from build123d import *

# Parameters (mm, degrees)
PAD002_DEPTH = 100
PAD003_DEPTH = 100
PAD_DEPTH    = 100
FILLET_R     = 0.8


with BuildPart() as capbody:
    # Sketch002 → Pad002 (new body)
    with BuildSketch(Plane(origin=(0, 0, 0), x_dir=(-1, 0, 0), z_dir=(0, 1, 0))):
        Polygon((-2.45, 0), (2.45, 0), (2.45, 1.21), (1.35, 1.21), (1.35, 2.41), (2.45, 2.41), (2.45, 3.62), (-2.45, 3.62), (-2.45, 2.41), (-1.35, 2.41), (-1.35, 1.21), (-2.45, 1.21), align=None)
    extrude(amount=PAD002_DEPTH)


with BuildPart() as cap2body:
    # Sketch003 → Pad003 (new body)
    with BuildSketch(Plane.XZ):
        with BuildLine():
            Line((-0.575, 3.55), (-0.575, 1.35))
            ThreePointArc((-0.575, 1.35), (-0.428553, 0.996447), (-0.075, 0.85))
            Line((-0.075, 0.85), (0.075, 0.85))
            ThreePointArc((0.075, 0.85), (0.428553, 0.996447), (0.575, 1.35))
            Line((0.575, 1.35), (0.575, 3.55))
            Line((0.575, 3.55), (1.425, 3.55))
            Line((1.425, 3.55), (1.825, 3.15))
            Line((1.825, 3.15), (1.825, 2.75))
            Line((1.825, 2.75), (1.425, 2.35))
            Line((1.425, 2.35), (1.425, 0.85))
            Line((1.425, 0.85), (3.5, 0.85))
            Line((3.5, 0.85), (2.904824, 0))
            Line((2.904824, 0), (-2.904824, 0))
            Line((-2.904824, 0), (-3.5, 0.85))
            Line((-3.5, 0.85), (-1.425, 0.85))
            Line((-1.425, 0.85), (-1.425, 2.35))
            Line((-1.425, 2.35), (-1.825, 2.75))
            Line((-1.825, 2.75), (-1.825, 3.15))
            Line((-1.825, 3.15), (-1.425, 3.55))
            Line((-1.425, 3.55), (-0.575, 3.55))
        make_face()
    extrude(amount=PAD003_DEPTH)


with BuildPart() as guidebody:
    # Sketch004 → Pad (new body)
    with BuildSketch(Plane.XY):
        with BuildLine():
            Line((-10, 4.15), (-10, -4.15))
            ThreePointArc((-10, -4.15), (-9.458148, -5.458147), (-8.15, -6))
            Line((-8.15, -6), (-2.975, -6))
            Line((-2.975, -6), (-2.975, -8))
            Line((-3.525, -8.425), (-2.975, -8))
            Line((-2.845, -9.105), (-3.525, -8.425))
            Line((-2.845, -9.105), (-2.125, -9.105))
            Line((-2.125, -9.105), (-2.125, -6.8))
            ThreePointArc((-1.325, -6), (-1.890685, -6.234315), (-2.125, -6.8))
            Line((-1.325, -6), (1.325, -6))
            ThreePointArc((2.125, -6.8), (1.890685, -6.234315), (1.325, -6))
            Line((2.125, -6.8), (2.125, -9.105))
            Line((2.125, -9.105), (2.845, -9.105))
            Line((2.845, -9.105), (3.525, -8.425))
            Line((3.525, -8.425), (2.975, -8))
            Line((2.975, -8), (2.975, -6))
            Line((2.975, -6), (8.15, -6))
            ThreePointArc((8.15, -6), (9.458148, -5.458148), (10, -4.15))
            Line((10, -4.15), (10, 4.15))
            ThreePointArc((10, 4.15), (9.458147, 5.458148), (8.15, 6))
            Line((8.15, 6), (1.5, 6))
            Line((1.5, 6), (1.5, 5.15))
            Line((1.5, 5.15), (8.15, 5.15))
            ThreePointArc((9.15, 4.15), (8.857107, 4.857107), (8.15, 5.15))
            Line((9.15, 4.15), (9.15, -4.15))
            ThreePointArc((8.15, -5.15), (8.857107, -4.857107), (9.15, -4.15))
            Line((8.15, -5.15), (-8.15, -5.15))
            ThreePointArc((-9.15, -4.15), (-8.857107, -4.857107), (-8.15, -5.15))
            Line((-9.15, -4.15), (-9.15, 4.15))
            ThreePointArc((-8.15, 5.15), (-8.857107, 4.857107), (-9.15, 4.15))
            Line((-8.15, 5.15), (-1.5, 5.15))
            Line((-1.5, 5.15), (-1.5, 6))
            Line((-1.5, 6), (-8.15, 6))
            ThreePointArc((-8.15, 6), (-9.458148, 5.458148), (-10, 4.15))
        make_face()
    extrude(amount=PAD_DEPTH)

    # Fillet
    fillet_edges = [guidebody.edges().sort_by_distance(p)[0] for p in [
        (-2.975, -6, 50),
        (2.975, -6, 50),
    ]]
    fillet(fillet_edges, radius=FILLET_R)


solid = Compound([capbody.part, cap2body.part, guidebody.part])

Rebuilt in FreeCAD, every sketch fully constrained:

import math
import FreeCAD as App
import Part
import Sketcher
from FreeCAD import Vector
Q = App.Units.Quantity


def edges_at(feature, points):
    """Names of the edges that pass closest to the given points."""
    edges = feature.Shape.Edges
    near = lambda p: min(range(len(edges)), key=lambda i: edges[i].distToShape(Part.Vertex(*p))[0])
    return sorted({f"Edge{near(p) + 1}" for p in points})


def add_polygon(sketch, points):
    """Adds a closed chain of lines whose ends are joined by coincident constraints."""
    first, n = sketch.GeometryCount, len(points)
    for a, b in zip(points, points[1:] + points[:1]):
        sketch.addGeometry(Part.LineSegment(App.Vector(*a, 0), App.Vector(*b, 0)), False)
    for i in range(n):
        sketch.addConstraint(Sketcher.Constraint("Coincident", first + i, 2, first + (i + 1) % n, 1))

doc = App.newDocument("Part")
body = doc.addObject("PartDesign::Body", "Body")

sketch1 = body.newObject("Sketcher::SketchObject", "Sketch")
sketch1.AttachmentSupport = (doc.getObject("XZ_Plane"), [""])
sketch1.MapMode = "FlatFace"
add_polygon(sketch1, [(2.45, 0), (-2.45, 0), (-2.45, 1.21), (-1.35, 1.21), (-1.35, 2.41), (-2.45, 2.41), (-2.45, 3.62), (2.45, 3.62), (2.45, 2.41), (1.35, 2.41), (1.35, 1.21), (2.45, 1.21)])
sketch1.addConstraint([
    Sketcher.Constraint("Horizontal", 0),
    Sketcher.Constraint("Vertical", 1),
    Sketcher.Constraint("Horizontal", 2),
    Sketcher.Constraint("Vertical", 3),
    Sketcher.Constraint("Horizontal", 4),
    Sketcher.Constraint("Vertical", 5),
    Sketcher.Constraint("Horizontal", 6),
    Sketcher.Constraint("Vertical", 7),
    Sketcher.Constraint("Horizontal", 8),
    Sketcher.Constraint("Vertical", 9),
    Sketcher.Constraint("Horizontal", 10),
    Sketcher.Constraint("Vertical", 11),
    Sketcher.Constraint("Symmetric", 0, 2, 11, 2, -1, 1),
    Sketcher.Constraint("Symmetric", 4, 2, 7, 2, -2),
    Sketcher.Constraint("Symmetric", 2, 2, 9, 2, -2),
    Sketcher.Constraint("Vertical", 1, 2, 4, 2),
    Sketcher.Constraint("Equal", 1, 5),
    Sketcher.Constraint("DistanceX", 0, 2, 0, 1, 4.9),
    Sketcher.Constraint("DistanceX", 2, 1, 2, 2, 1.1),
    Sketcher.Constraint("DistanceY", 3, 1, 3, 2, 1.2),
    Sketcher.Constraint("DistanceY", 1, 1, 1, 2, 1.21),
])
pad1 = body.newObject("PartDesign::Pad", "Pad")
pad1.Profile = sketch1
pad1.Length = 100
pad1.Reversed = True
body2 = doc.addObject("PartDesign::Body", "Body001")

sketch2 = body2.newObject("Sketcher::SketchObject", "Sketch001")
sketch2.AttachmentSupport = (doc.getObject("XZ_Plane001"), [""])
sketch2.MapMode = "FlatFace"
sketch2.addGeometry([
    Part.LineSegment(Vector(-0.575, 1.35, 0), Vector(-0.575, 3.55, 0)),
    Part.LineSegment(Vector(-0.575, 3.55, 0), Vector(-1.425, 3.55, 0)),
    Part.LineSegment(Vector(-1.425, 3.55, 0), Vector(-1.825, 3.15, 0)),
    Part.LineSegment(Vector(-1.825, 3.15, 0), Vector(-1.825, 2.75, 0)),
    Part.LineSegment(Vector(-1.825, 2.75, 0), Vector(-1.425, 2.35, 0)),
    Part.LineSegment(Vector(-1.425, 2.35, 0), Vector(-1.425, 0.85, 0)),
    Part.LineSegment(Vector(-1.425, 0.85, 0), Vector(-3.5, 0.85, 0)),
    Part.LineSegment(Vector(-3.5, 0.85, 0), Vector(-2.904824, 0, 0)),
    Part.LineSegment(Vector(-2.904824, 0, 0), Vector(2.904824, 0, 0)),
    Part.LineSegment(Vector(2.904824, 0, 0), Vector(3.5, 0.85, 0)),
    Part.LineSegment(Vector(3.5, 0.85, 0), Vector(1.425, 0.85, 0)),
    Part.LineSegment(Vector(1.425, 0.85, 0), Vector(1.425, 2.35, 0)),
    Part.LineSegment(Vector(1.425, 2.35, 0), Vector(1.825, 2.75, 0)),
    Part.LineSegment(Vector(1.825, 2.75, 0), Vector(1.825, 3.15, 0)),
    Part.LineSegment(Vector(1.825, 3.15, 0), Vector(1.425, 3.55, 0)),
    Part.LineSegment(Vector(1.425, 3.55, 0), Vector(0.575, 3.55, 0)),
    Part.LineSegment(Vector(0.575, 3.55, 0), Vector(0.575, 1.35, 0)),
    Part.ArcOfCircle(Part.Circle(Vector(0.074999, 1.350001, 0), Vector(0, 0, 1), 0.500001), math.radians(-89.999847), math.radians(-0.000153)),
    Part.LineSegment(Vector(0.075, 0.85, 0), Vector(-0.075, 0.85, 0)),
    Part.ArcOfCircle(Part.Circle(Vector(-0.074999, 1.350001, 0), Vector(0, 0, 1), 0.500001), math.radians(-179.999847), math.radians(-90.000153)),
], False)
sketch2.addConstraint([
    Sketcher.Constraint("Coincident", 0, 2, 1, 1),
    Sketcher.Constraint("Coincident", 1, 2, 2, 1),
    Sketcher.Constraint("Coincident", 2, 2, 3, 1),
    Sketcher.Constraint("Coincident", 3, 2, 4, 1),
    Sketcher.Constraint("Coincident", 4, 2, 5, 1),
    Sketcher.Constraint("Coincident", 5, 2, 6, 1),
    Sketcher.Constraint("Coincident", 6, 2, 7, 1),
    Sketcher.Constraint("Coincident", 7, 2, 8, 1),
    Sketcher.Constraint("Coincident", 8, 2, 9, 1),
    Sketcher.Constraint("Coincident", 9, 2, 10, 1),
    Sketcher.Constraint("Coincident", 10, 2, 11, 1),
    Sketcher.Constraint("Coincident", 11, 2, 12, 1),
    Sketcher.Constraint("Coincident", 12, 2, 13, 1),
    Sketcher.Constraint("Coincident", 13, 2, 14, 1),
    Sketcher.Constraint("Coincident", 14, 2, 15, 1),
    Sketcher.Constraint("Coincident", 15, 2, 16, 1),
    Sketcher.Constraint("Coincident", 16, 2, 17, 2),
    Sketcher.Constraint("Coincident", 17, 1, 18, 1),
    Sketcher.Constraint("Coincident", 18, 2, 19, 2),
    Sketcher.Constraint("Coincident", 19, 1, 0, 1),
    Sketcher.Constraint("Vertical", 0),
    Sketcher.Constraint("Horizontal", 1),
    Sketcher.Constraint("Vertical", 3),
    Sketcher.Constraint("Vertical", 5),
    Sketcher.Constraint("Horizontal", 6),
    Sketcher.Constraint("Horizontal", 8),
    Sketcher.Constraint("Horizontal", 10),
    Sketcher.Constraint("Vertical", 11),
    Sketcher.Constraint("Vertical", 13),
    Sketcher.Constraint("Horizontal", 15),
    Sketcher.Constraint("Vertical", 16),
    Sketcher.Constraint("Horizontal", 18),
    Sketcher.Constraint("Equal", 17, 19),
    Sketcher.Constraint("Symmetric", 7, 2, 8, 2, -1, 1),
    Sketcher.Constraint("Symmetric", 6, 2, 9, 2, -2),
    Sketcher.Constraint("Symmetric", 4, 2, 11, 2, -2),
    Sketcher.Constraint("Symmetric", 3, 2, 12, 2, -2),
    Sketcher.Constraint("Symmetric", 1, 2, 14, 2, -2),
    Sketcher.Constraint("Symmetric", 16, 2, 19, 1, -2),
    Sketcher.Constraint("Perpendicular", 2, 4),
    Sketcher.Constraint("Perpendicular", 4, 12),
    Sketcher.Constraint("Perpendicular", 12, 14),
    Sketcher.Constraint("Horizontal", 19, 3, 16, 2),
    Sketcher.Constraint("Horizontal", 10, 2, 17, 1),
    Sketcher.Constraint("Vertical", 1, 2, 4, 2),
    Sketcher.Constraint("Vertical", 19, 3, 18, 2),
    Sketcher.Constraint("Radius", 17, 0.500001),
    Sketcher.Constraint("Angle", 7, Q("-55.000018 deg")),
    Sketcher.Constraint("DistanceY", 0, 1, 0, 2, 2.2),
    Sketcher.Constraint("DistanceY", 3, 2, 3, 1, 0.4),
    Sketcher.Constraint("DistanceY", 5, 2, 5, 1, 1.5),
    Sketcher.Constraint("DistanceX", 0, 2, 11, 2, 2.0),
    Sketcher.Constraint("DistanceX", 1, 2, 1, 1, 0.85),
    Sketcher.Constraint("DistanceX", 18, 2, 18, 1, 0.15),
    Sketcher.Constraint("DistanceX", 6, 2, -1, 1, 3.5),
    Sketcher.Constraint("DistanceY", -1, 1, 17, 3, 1.350001),
])
pad2 = body2.newObject("PartDesign::Pad", "Pad001")
pad2.Profile = sketch2
pad2.Length = 100
body3 = doc.addObject("PartDesign::Body", "Body002")

sketch3 = body3.newObject("Sketcher::SketchObject", "Sketch002")
sketch3.AttachmentSupport = (doc.getObject("XY_Plane002"), [""])
sketch3.MapMode = "FlatFace"
sketch3.addGeometry([
    Part.LineSegment(Vector(-10, 4.15, 0), Vector(-10, -4.15, 0)),
    Part.ArcOfCircle(Part.Circle(Vector(-8.15, -4.15, 0), Vector(0, 0, 1), 1.85), math.radians(-179.999995), math.radians(-90.000005)),
    Part.LineSegment(Vector(-8.15, -6, 0), Vector(-2.975, -6, 0)),
    Part.LineSegment(Vector(-2.975, -6, 0), Vector(-2.975, -8, 0)),
    Part.LineSegment(Vector(-2.975, -8, 0), Vector(-3.525, -8.425, 0)),
    Part.LineSegment(Vector(-3.525, -8.425, 0), Vector(-2.845, -9.105, 0)),
    Part.LineSegment(Vector(-2.845, -9.105, 0), Vector(-2.125, -9.105, 0)),
    Part.LineSegment(Vector(-2.125, -9.105, 0), Vector(-2.125, -6.8, 0)),
    Part.ArcOfCircle(Part.Circle(Vector(-1.324999, -6.800001, 0), Vector(0, 0, 1), 0.800001), math.radians(90.000104), math.radians(179.999896)),
    Part.LineSegment(Vector(-1.325, -6, 0), Vector(1.325, -6, 0)),
    Part.ArcOfCircle(Part.Circle(Vector(1.324999, -6.800001, 0), Vector(0, 0, 1), 0.800001), math.radians(0.000104), math.radians(89.999896)),
    Part.LineSegment(Vector(2.125, -6.8, 0), Vector(2.125, -9.105, 0)),
    Part.LineSegment(Vector(2.125, -9.105, 0), Vector(2.845, -9.105, 0)),
    Part.LineSegment(Vector(2.845, -9.105, 0), Vector(3.525, -8.425, 0)),
    Part.LineSegment(Vector(3.525, -8.425, 0), Vector(2.975, -8, 0)),
    Part.LineSegment(Vector(2.975, -8, 0), Vector(2.975, -6, 0)),
    Part.LineSegment(Vector(2.975, -6, 0), Vector(8.15, -6, 0)),
    Part.ArcOfCircle(Part.Circle(Vector(8.150002, -4.150002, 0), Vector(0, 0, 1), 1.849998), math.radians(-90.000048), math.radians(0.000048)),
    Part.LineSegment(Vector(10, -4.15, 0), Vector(10, 4.15, 0)),
    Part.ArcOfCircle(Part.Circle(Vector(8.15, 4.15, 0), Vector(0, 0, 1), 1.85), math.radians(0.000005), math.radians(89.999995)),
    Part.LineSegment(Vector(8.15, 6, 0), Vector(1.5, 6, 0)),
    Part.LineSegment(Vector(1.5, 6, 0), Vector(1.5, 5.15, 0)),
    Part.LineSegment(Vector(1.5, 5.15, 0), Vector(8.15, 5.15, 0)),
    Part.ArcOfCircle(Part.Circle(Vector(8.150001, 4.150001, 0), Vector(0, 0, 1), 0.999999), math.radians(-0.000043), math.radians(90.000043)),
    Part.LineSegment(Vector(9.15, 4.15, 0), Vector(9.15, -4.15, 0)),
    Part.ArcOfCircle(Part.Circle(Vector(8.150001, -4.150001, 0), Vector(0, 0, 1), 0.999999), math.radians(-90.000043), math.radians(0.000043)),
    Part.LineSegment(Vector(8.15, -5.15, 0), Vector(-8.15, -5.15, 0)),
    Part.ArcOfCircle(Part.Circle(Vector(-8.150001, -4.150001, 0), Vector(0, 0, 1), 0.999999), math.radians(179.999957), math.radians(270.000043)),
    Part.LineSegment(Vector(-9.15, -4.15, 0), Vector(-9.15, 4.15, 0)),
    Part.ArcOfCircle(Part.Circle(Vector(-8.150001, 4.150001, 0), Vector(0, 0, 1), 0.999999), math.radians(89.999957), math.radians(180.000043)),
    Part.LineSegment(Vector(-8.15, 5.15, 0), Vector(-1.5, 5.15, 0)),
    Part.LineSegment(Vector(-1.5, 5.15, 0), Vector(-1.5, 6, 0)),
    Part.LineSegment(Vector(-1.5, 6, 0), Vector(-8.15, 6, 0)),
    Part.ArcOfCircle(Part.Circle(Vector(-8.150002, 4.150002, 0), Vector(0, 0, 1), 1.849998), math.radians(89.999952), math.radians(180.000048)),
], False)
sketch3.addConstraint([
    Sketcher.Constraint("Tangent", 0, 2, 1, 1),
    Sketcher.Constraint("Tangent", 1, 2, 2, 1),
    Sketcher.Constraint("Coincident", 2, 2, 3, 1),
    Sketcher.Constraint("Coincident", 3, 2, 4, 1),
    Sketcher.Constraint("Coincident", 4, 2, 5, 1),
    Sketcher.Constraint("Coincident", 5, 2, 6, 1),
    Sketcher.Constraint("Coincident", 6, 2, 7, 1),
    Sketcher.Constraint("Tangent", 7, 2, 8, 2),
    Sketcher.Constraint("Tangent", 8, 1, 9, 1),
    Sketcher.Constraint("Tangent", 9, 2, 10, 2),
    Sketcher.Constraint("Tangent", 10, 1, 11, 1),
    Sketcher.Constraint("Coincident", 11, 2, 12, 1),
    Sketcher.Constraint("Coincident", 12, 2, 13, 1),
    Sketcher.Constraint("Coincident", 13, 2, 14, 1),
    Sketcher.Constraint("Coincident", 14, 2, 15, 1),
    Sketcher.Constraint("Coincident", 15, 2, 16, 1),
    Sketcher.Constraint("Tangent", 16, 2, 17, 1),
    Sketcher.Constraint("Tangent", 17, 2, 18, 1),
    Sketcher.Constraint("Tangent", 18, 2, 19, 1),
    Sketcher.Constraint("Tangent", 19, 2, 20, 1),
    Sketcher.Constraint("Coincident", 20, 2, 21, 1),
    Sketcher.Constraint("Coincident", 21, 2, 22, 1),
    Sketcher.Constraint("Tangent", 22, 2, 23, 2),
    Sketcher.Constraint("Tangent", 23, 1, 24, 1),
    Sketcher.Constraint("Tangent", 24, 2, 25, 2),
    Sketcher.Constraint("Tangent", 25, 1, 26, 1),
    Sketcher.Constraint("Tangent", 26, 2, 27, 2),
    Sketcher.Constraint("Tangent", 27, 1, 28, 1),
    Sketcher.Constraint("Tangent", 28, 2, 29, 2),
    Sketcher.Constraint("Tangent", 29, 1, 30, 1),
    Sketcher.Constraint("Coincident", 30, 2, 31, 1),
    Sketcher.Constraint("Coincident", 31, 2, 32, 1),
    Sketcher.Constraint("Tangent", 32, 2, 33, 1),
    Sketcher.Constraint("Tangent", 33, 2, 0, 1),
    Sketcher.Constraint("Vertical", 0),
    Sketcher.Constraint("Horizontal", 2),
    Sketcher.Constraint("Vertical", 3),
    Sketcher.Constraint("Horizontal", 6),
    Sketcher.Constraint("Vertical", 7),
    Sketcher.Constraint("Horizontal", 9),
    Sketcher.Constraint("Vertical", 11),
    Sketcher.Constraint("Horizontal", 12),
    Sketcher.Constraint("Vertical", 15),
    Sketcher.Constraint("Horizontal", 16),
    Sketcher.Constraint("Vertical", 18),
    Sketcher.Constraint("Horizontal", 20),
    Sketcher.Constraint("Vertical", 21),
    Sketcher.Constraint("Horizontal", 22),
    Sketcher.Constraint("Vertical", 24),
    Sketcher.Constraint("Horizontal", 26),
    Sketcher.Constraint("Vertical", 28),
    Sketcher.Constraint("Horizontal", 30),
    Sketcher.Constraint("Vertical", 31),
    Sketcher.Constraint("Horizontal", 32),
    Sketcher.Constraint("Coincident", 23, 3, 19, 3),
    Sketcher.Constraint("Coincident", 25, 3, 17, 3),
    Sketcher.Constraint("Coincident", 27, 3, 1, 3),
    Sketcher.Constraint("Coincident", 33, 3, 29, 3),
    Sketcher.Constraint("Equal", 8, 10),
    Sketcher.Constraint("Equal", 1, 17),
    Sketcher.Constraint("Equal", 17, 19),
    Sketcher.Constraint("Equal", 25, 27),
    Sketcher.Constraint("Equal", 27, 29),
    Sketcher.Constraint("Symmetric", 1, 3, 19, 3, -1, 1),
    Sketcher.Constraint("Symmetric", 6, 2, 11, 2, -2),
    Sketcher.Constraint("Symmetric", 4, 2, 13, 2, -2),
    Sketcher.Constraint("Symmetric", 3, 2, 14, 2, -2),
    Sketcher.Constraint("Symmetric", 21, 2, 30, 2, -2),
    Sketcher.Constraint("Perpendicular", 5, 13),
    Sketcher.Constraint("Horizontal", 2, 2, 8, 1),
    Sketcher.Constraint("Equal", 6, 12),
    Sketcher.Constraint("Radius", 23, 0.999999),
    Sketcher.Constraint("Radius", 8, 0.800001),
    Sketcher.Constraint("DistanceY", 3, 2, 3, 1, 2.0),
    Sketcher.Constraint("Radius", 1, 1.85),
    Sketcher.Constraint("DistanceX", 26, 2, 26, 1, 16.3),
    Sketcher.Constraint("DistanceY", 0, 2, 0, 1, 8.3),
    Sketcher.Constraint("DistanceX", 30, 2, 21, 2, 3.0),
    Sketcher.Constraint("DistanceX", 6, 1, 6, 2, 0.72),
    Sketcher.Constraint("DistanceX", 9, 1, 9, 2, 2.65),
    Sketcher.Constraint("DistanceX", 2, 2, 10, 3, 4.299999),
    Sketcher.Constraint("DistanceX", 4, 2, 8, 3, 2.200001),
    Sketcher.Constraint("DistanceY", 7, 1, 7, 2, 2.305),
])
pad3 = body3.newObject("PartDesign::Pad", "Pad002")
pad3.Profile = sketch3
pad3.Length = 100
doc.recompute()

fillet = body3.newObject("PartDesign::Fillet", "Fillet")
fillet.Base = (pad3, edges_at(pad3, [(-2.975, -6, 50), (2.975, -6, 50)]))
fillet.Radius = 0.8

doc.recompute()
